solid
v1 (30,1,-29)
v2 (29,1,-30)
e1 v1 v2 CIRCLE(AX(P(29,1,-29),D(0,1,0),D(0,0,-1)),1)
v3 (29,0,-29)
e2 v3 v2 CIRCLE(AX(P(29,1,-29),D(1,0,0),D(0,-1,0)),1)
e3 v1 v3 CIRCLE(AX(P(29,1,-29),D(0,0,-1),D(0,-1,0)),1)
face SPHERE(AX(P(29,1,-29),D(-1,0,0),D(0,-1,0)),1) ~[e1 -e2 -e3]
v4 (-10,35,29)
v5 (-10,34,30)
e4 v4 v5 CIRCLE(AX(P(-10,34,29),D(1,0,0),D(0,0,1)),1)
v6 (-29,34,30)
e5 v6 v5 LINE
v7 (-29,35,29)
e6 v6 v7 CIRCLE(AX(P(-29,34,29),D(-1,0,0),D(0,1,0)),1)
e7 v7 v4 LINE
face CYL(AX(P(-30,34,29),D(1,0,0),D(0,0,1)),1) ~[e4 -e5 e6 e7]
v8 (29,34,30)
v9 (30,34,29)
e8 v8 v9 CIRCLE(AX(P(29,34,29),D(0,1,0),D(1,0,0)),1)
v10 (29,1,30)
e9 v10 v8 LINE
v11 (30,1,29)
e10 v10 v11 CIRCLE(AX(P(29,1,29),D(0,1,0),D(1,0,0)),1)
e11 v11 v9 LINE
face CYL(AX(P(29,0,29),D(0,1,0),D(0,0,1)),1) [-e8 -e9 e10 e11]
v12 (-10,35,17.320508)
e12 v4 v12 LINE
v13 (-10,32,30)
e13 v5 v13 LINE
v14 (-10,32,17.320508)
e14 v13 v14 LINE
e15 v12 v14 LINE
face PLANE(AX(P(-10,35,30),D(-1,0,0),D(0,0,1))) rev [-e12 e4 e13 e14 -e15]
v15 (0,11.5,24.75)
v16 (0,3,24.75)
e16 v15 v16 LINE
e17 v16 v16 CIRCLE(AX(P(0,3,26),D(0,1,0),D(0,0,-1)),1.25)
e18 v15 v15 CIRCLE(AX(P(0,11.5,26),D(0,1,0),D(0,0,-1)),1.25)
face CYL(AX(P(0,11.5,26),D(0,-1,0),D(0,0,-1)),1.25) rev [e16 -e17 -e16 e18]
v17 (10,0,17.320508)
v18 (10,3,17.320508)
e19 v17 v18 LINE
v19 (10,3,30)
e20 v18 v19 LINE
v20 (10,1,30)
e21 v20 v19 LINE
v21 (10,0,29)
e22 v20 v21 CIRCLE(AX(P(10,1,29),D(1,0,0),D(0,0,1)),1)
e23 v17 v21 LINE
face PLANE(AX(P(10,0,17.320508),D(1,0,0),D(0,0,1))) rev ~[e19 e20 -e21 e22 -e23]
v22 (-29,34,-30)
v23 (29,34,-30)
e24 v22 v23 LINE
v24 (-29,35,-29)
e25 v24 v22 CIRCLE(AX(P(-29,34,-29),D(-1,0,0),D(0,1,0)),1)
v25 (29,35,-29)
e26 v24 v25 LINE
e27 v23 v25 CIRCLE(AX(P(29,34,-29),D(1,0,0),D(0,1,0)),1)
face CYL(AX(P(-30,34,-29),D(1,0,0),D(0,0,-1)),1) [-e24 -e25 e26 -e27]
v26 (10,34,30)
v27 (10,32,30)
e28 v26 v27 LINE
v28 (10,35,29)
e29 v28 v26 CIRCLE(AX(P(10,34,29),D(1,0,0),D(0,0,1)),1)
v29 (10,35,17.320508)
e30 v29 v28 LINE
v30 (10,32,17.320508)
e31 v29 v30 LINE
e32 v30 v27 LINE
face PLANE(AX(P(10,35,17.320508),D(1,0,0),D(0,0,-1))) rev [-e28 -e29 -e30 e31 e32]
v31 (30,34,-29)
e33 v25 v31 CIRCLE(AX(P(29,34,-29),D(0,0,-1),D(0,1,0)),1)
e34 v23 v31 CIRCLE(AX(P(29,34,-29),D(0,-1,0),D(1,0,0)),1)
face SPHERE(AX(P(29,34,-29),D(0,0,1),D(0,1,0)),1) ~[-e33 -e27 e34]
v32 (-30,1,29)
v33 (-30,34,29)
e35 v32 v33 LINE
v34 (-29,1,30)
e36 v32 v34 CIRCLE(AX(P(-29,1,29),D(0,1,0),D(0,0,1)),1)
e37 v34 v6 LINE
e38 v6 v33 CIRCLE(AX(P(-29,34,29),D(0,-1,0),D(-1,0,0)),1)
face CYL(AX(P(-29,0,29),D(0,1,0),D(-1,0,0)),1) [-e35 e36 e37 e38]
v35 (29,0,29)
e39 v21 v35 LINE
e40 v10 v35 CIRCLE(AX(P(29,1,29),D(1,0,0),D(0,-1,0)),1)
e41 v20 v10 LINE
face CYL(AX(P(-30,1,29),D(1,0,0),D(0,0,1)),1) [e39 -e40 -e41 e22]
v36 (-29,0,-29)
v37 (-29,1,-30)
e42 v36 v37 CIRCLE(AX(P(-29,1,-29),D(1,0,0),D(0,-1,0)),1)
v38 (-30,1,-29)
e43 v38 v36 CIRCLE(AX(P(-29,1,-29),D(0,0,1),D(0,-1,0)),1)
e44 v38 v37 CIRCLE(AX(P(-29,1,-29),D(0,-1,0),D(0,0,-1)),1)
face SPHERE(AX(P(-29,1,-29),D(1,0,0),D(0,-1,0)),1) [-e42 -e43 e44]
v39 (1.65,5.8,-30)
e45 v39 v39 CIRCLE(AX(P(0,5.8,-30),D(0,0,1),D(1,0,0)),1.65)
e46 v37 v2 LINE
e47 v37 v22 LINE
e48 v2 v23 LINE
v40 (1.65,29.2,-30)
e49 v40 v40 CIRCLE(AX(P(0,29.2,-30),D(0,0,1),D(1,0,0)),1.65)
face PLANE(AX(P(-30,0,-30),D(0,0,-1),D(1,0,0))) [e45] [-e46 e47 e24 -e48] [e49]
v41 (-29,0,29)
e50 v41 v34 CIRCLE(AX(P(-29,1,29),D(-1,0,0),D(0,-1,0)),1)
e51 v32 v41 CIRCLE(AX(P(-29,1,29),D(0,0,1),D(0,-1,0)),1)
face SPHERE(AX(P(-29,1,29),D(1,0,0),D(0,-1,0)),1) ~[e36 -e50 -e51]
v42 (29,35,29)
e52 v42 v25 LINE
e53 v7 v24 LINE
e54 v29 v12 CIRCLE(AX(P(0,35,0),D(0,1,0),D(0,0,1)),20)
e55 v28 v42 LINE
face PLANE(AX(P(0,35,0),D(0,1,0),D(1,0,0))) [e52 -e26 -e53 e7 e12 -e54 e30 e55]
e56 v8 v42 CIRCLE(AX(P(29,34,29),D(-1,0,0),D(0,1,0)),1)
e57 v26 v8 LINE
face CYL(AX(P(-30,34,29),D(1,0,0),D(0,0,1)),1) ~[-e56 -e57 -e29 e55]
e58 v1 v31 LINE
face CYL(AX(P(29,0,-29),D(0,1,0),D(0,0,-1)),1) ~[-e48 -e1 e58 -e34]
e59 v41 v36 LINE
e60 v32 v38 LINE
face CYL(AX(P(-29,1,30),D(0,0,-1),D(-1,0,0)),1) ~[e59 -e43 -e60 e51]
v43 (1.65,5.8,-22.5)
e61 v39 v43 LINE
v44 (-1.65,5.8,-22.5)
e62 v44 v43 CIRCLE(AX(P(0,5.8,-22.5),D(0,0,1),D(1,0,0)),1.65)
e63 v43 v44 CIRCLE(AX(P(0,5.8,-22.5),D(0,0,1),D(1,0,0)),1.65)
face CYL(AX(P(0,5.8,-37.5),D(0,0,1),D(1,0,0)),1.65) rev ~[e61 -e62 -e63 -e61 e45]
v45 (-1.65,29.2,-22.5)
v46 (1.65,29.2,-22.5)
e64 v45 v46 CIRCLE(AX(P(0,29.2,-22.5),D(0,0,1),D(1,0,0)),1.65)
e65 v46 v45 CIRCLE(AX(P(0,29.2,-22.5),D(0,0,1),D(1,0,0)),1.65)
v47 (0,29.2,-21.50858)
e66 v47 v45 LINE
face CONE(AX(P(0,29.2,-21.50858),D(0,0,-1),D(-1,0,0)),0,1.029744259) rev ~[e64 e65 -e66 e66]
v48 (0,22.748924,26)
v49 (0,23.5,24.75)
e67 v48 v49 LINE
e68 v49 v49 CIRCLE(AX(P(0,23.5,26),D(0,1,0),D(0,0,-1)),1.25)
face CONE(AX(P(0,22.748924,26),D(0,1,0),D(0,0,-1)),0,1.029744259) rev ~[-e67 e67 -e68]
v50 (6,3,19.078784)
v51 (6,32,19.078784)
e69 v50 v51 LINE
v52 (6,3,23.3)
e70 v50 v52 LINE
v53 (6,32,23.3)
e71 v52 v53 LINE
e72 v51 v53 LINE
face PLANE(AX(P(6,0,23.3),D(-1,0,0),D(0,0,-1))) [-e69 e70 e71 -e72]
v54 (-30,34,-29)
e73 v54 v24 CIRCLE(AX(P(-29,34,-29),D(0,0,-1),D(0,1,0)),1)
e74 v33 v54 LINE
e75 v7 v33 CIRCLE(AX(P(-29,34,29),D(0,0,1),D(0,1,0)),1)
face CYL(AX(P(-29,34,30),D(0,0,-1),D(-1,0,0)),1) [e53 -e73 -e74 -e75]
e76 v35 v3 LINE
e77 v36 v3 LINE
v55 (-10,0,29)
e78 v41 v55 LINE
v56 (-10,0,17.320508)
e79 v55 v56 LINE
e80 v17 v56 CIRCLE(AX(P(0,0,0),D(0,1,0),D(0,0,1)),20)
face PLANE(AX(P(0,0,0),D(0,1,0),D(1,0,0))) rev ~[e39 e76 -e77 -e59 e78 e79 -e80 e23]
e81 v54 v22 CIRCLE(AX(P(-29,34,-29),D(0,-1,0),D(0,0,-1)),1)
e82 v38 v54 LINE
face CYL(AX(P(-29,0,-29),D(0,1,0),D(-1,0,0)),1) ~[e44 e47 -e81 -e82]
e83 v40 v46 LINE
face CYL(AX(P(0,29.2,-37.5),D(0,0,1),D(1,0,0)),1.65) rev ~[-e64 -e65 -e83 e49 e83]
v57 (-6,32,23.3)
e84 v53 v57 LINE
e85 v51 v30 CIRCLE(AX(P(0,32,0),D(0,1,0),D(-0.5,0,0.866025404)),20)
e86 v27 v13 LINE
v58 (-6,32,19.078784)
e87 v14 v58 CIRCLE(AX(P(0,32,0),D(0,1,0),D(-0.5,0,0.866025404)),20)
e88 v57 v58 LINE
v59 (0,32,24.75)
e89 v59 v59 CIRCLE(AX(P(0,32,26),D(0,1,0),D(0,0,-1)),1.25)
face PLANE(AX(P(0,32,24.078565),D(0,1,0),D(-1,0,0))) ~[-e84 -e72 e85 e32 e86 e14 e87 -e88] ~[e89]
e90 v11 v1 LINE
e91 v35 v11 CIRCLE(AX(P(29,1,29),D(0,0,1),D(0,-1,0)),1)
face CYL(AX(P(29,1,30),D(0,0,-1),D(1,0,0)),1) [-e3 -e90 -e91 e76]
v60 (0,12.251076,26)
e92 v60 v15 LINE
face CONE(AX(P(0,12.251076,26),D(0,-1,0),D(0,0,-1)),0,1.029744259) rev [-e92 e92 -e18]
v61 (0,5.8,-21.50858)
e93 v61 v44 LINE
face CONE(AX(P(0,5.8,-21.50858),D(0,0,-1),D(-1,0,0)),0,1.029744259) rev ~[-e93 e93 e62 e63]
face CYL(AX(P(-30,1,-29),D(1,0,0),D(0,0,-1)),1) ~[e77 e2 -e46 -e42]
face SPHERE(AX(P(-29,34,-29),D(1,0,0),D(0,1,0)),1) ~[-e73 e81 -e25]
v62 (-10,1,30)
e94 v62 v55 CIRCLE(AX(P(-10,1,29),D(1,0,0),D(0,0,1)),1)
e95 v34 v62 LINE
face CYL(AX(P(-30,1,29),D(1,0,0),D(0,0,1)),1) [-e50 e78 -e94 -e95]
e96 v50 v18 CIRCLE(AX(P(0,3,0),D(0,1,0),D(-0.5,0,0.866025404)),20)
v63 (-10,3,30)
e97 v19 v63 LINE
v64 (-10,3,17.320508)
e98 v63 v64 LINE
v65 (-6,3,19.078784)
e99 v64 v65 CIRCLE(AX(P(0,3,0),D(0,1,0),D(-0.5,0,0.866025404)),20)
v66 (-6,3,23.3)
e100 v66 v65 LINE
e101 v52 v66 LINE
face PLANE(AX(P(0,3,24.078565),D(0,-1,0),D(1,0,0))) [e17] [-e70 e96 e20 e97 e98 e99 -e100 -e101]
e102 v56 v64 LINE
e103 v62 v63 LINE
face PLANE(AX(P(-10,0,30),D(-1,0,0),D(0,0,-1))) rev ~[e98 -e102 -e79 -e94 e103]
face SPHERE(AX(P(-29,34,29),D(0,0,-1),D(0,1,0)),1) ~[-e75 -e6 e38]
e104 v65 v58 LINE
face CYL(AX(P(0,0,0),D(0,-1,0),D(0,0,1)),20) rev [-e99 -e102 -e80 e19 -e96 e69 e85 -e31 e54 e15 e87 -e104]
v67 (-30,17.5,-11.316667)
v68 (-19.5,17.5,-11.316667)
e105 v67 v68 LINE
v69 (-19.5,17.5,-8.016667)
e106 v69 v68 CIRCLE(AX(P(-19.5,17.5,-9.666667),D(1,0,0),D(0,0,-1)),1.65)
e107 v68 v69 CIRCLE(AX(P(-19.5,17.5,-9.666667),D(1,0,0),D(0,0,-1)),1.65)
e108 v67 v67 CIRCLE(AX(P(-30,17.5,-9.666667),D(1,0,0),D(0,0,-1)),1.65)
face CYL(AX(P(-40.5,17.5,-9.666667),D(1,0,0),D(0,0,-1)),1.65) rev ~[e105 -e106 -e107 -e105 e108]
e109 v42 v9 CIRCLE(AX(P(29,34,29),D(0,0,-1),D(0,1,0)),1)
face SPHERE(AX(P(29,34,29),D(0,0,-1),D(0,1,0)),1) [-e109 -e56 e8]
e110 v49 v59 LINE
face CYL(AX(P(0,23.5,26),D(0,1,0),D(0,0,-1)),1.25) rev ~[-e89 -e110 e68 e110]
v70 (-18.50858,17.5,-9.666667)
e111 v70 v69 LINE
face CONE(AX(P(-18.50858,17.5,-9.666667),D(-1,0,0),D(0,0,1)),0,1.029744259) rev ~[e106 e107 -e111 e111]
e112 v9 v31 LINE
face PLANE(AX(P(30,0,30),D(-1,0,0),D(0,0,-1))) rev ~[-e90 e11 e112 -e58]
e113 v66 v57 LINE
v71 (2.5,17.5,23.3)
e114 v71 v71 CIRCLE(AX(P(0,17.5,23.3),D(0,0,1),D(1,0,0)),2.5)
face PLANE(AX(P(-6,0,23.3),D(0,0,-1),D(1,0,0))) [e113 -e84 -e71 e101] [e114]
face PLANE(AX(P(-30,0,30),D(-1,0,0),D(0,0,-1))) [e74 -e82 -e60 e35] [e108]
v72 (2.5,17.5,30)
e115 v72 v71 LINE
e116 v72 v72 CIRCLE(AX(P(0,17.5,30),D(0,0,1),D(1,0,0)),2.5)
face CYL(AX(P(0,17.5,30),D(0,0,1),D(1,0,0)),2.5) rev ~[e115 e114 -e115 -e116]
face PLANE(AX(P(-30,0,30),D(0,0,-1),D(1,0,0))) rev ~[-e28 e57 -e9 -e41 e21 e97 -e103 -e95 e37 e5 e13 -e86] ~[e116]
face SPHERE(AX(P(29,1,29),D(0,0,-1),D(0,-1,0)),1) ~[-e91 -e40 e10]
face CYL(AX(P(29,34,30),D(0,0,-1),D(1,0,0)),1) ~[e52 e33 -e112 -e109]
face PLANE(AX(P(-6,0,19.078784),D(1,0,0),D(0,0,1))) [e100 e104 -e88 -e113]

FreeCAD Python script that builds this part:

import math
import FreeCAD as App
import Part
import Sketcher

V = App.Vector
Q = App.Units.Quantity


def edges_at(feature, points):
    """Names of the edges that pass closest to the given points."""
    edges = feature.Shape.Edges
    near = lambda p: min(range(len(edges)), key=lambda i: edges[i].distToShape(Part.Vertex(*p))[0])
    return sorted({f"Edge{near(p) + 1}" for p in points})

doc = App.newDocument("Part")
body = doc.addObject("PartDesign::Body", "Body")

# Sketch on XZ plane
sketch1 = body.newObject("Sketcher::SketchObject", "Sketch")
sketch1.AttachmentSupport = (doc.getObject("XZ_Plane"), [""])
sketch1.MapMode = "FlatFace"
sketch1.addGeometry([
    Part.LineSegment(V(-30, -30, 0), V(-30, 30, 0)),  # 0
    Part.LineSegment(V(-30, 30, 0), V(30, 30, 0)),  # 1
    Part.LineSegment(V(30, 30, 0), V(30, -30, 0)),  # 2
    Part.LineSegment(V(30, -30, 0), V(-30, -30, 0)),  # 3
    Part.Circle(V(0, 0, 0), V(0, 0, 1), 20),  # 4
], False)
sketch1.addConstraint([
    Sketcher.Constraint("Coincident", 0, 2, 1, 1),
    Sketcher.Constraint("Coincident", 1, 2, 2, 1),
    Sketcher.Constraint("Coincident", 2, 2, 3, 1),
    Sketcher.Constraint("Coincident", 3, 2, 0, 1),
    Sketcher.Constraint("Vertical", 0),
    Sketcher.Constraint("Horizontal", 1),
    Sketcher.Constraint("Vertical", 2),
    Sketcher.Constraint("Horizontal", 3),
    Sketcher.Constraint("Coincident", 4, 3, -1, 1),
    Sketcher.Constraint("Symmetric", 0, 2, 2, 2, -1, 1),
    Sketcher.Constraint("Equal", 3, 0),
    Sketcher.Constraint("Diameter", 4, 40.0),
    Sketcher.Constraint("DistanceX", 1, 1, 1, 2, 60.0),
])
pad1 = body.newObject("PartDesign::Pad", "Pad")
pad1.Profile = sketch1
pad1.Length = 35
pad1.Reversed = True
doc.recompute()

fillet = body.newObject("PartDesign::Fillet", "Fillet")
fillet.Base = (pad1, edges_at(pad1, [
    (30, 35, 0),
    (0, 35, -30),
    (-30, 35, 0),
    (0, 0, -30),
    (30, 0, 0),
    (0, 0, 30),
    (-30, 0, 0),
    (0, 35, 30),
    (-30, 17.5, -30),
    (30, 17.5, -30),
    (30, 17.5, 30),
    (-30, 17.5, 30),
]))
fillet.Radius = 1

# Sketch on XY plane
sketch2 = body.newObject("Sketcher::SketchObject", "Sketch001")
sketch2.AttachmentSupport = (doc.getObject("XY_Plane"), [""])
sketch2.MapMode = "FlatFace"
sketch2.AttachmentOffset = App.Placement(V(0, 0, 30), App.Rotation())
sketch2.addGeometry(Part.Circle(V(0, 17.5, 0), V(0, 0, 1), 2.5), False)
sketch2.addConstraint([
    Sketcher.Constraint("PointOnObject", 0, 3, -2),
    Sketcher.Constraint("Diameter", 0, 5.0),
    Sketcher.Constraint("DistanceY", -1, 1, 0, 3, 17.5),
])
pocket1 = body.newObject("PartDesign::Pocket", "Pocket")
pocket1.Profile = sketch2
pocket1.Type = "UpToFirst"

# Sketch on XY plane
sketch3 = body.newObject("Sketcher::SketchObject", "Sketch002")
sketch3.AttachmentSupport = (doc.getObject("XY_Plane"), [""])
sketch3.MapMode = "FlatFace"
sketch3.AttachmentOffset = App.Placement(V(0, 0, -30), App.Rotation())
sketch3.addGeometry([
    Part.Circle(V(0, 29.2, 0), V(0, 0, 1), 1.6),
    Part.Circle(V(0, 5.8, 0), V(0, 0, 1), 1.6),
], False)
sketch3.addConstraint([
    Sketcher.Constraint("Equal", 0, 1),
    Sketcher.Constraint("PointOnObject", 0, 3, -2),
    Sketcher.Constraint("PointOnObject", 1, 3, -2),
    Sketcher.Constraint("Diameter", 0, 3.3),
    Sketcher.Constraint("DistanceY", -1, 1, 0, 3, 29.2),
    Sketcher.Constraint("DistanceY", -1, 1, 1, 3, 5.8),
])
doc.recompute()
hole = body.newObject("PartDesign::Hole", "Hole")
hole.Profile = sketch3
hole.ThreadType = "None"
hole.Diameter = 3.3
hole.DepthType = "Dimension"
hole.Depth = 7.5
hole.DrillPoint = "Angled"
hole.DrillPointAngle = 118
hole.Reversed = True

# Sketch on YZ plane
sketch4 = body.newObject("Sketcher::SketchObject", "Sketch003")
sketch4.AttachmentSupport = (doc.getObject("YZ_Plane"), [""])
sketch4.MapMode = "FlatFace"
sketch4.AttachmentOffset = App.Placement(V(0, 0, -30), App.Rotation())
sketch4.addGeometry(Part.Circle(V(17.5, -9.7, 0), V(0, 0, 1), 1.6), False)
sketch4.addConstraint([
    Sketcher.Constraint("Diameter", 0, 3.3),
    Sketcher.Constraint("DistanceX", -1, 1, 0, 3, 17.5),
    Sketcher.Constraint("DistanceY", 0, 3, -1, 1, 9.666667),
])
doc.recompute()
hole2 = body.newObject("PartDesign::Hole", "Hole001")
hole2.Profile = sketch4
hole2.ThreadType = "None"
hole2.Diameter = 3.3
hole2.DepthType = "Dimension"
hole2.Depth = 10.5
hole2.DrillPoint = "Angled"
hole2.DrillPointAngle = 118
hole2.Reversed = True

# Sketch on XZ plane
sketch5 = body.newObject("Sketcher::SketchObject", "Sketch004")
sketch5.AttachmentSupport = (doc.getObject("XZ_Plane"), [""])
sketch5.MapMode = "FlatFace"
sketch5.addGeometry([
    Part.LineSegment(V(6, 19.1, 0), V(6, 23.3, 0)),
    Part.LineSegment(V(6, 23.3, 0), V(-6, 23.3, 0)),
    Part.LineSegment(V(-6, 23.3, 0), V(-6, 19.1, 0)),
    Part.ArcOfCircle(Part.Circle(V(0, 0, 0), V(0, 0, 1), 20), math.radians(73), math.radians(107)),
], False)
sketch5.addConstraint([
    Sketcher.Constraint("Coincident", 0, 2, 1, 1),
    Sketcher.Constraint("Coincident", 1, 2, 2, 1),
    Sketcher.Constraint("Coincident", 2, 2, 3, 2),
    Sketcher.Constraint("Coincident", 3, 1, 0, 1),
    Sketcher.Constraint("Vertical", 0),
    Sketcher.Constraint("Horizontal", 1),
    Sketcher.Constraint("Vertical", 2),
    Sketcher.Constraint("Coincident", 3, 3, -1, 1),
    Sketcher.Constraint("Horizontal", 2, 2, 3, 1),
    Sketcher.Constraint("Radius", 3, 20.0),
    Sketcher.Constraint("DistanceX", 1, 2, 1, 1, 12.0),
    Sketcher.Constraint("DistanceY", -1, 1, 0, 2, 23.3),
])
pocket2 = body.newObject("PartDesign::Pocket", "Pocket001")
pocket2.Profile = sketch5
pocket2.Length = 35

# Sketch on XZ plane
sketch6 = body.newObject("Sketcher::SketchObject", "Sketch005")
sketch6.AttachmentSupport = (doc.getObject("XZ_Plane"), [""])
sketch6.MapMode = "FlatFace"
sketch6.addGeometry([
    Part.LineSegment(V(-10, 30, 0), V(-10, 17, 0)),
    Part.ArcOfCircle(Part.Circle(V(0, 0, 0), V(0, 0, 1), 20), math.radians(60), math.radians(120)),
    Part.LineSegment(V(10, 17, 0), V(10, 30, 0)),
    Part.LineSegment(V(10, 30, 0), V(-10, 30, 0)),
], False)
sketch6.addConstraint([
    Sketcher.Constraint("Coincident", 0, 2, 1, 2),
    Sketcher.Constraint("Coincident", 1, 1, 2, 1),
    Sketcher.Constraint("Coincident", 2, 2, 3, 1),
    Sketcher.Constraint("Coincident", 3, 2, 0, 1),
    Sketcher.Constraint("Vertical", 0),
    Sketcher.Constraint("Vertical", 2),
    Sketcher.Constraint("Horizontal", 3),
    Sketcher.Constraint("Coincident", 1, 3, -1, 1),
    Sketcher.Constraint("Horizontal", 0, 2, 1, 1),
    Sketcher.Constraint("Radius", 1, 20.0),
    Sketcher.Constraint("DistanceX", 3, 2, 3, 1, 20.0),
    Sketcher.Constraint("DistanceY", -1, 1, 2, 2, 30.0),
])
pocket3 = body.newObject("PartDesign::Pocket", "Pocket002")
pocket3.Profile = sketch6
pocket3.Length = 3

# Sketch on YZ plane
sketch7 = body.newObject("Sketcher::SketchObject", "Sketch006")
sketch7.AttachmentSupport = (doc.getObject("YZ_Plane"), [""])
sketch7.MapMode = "FlatFace"
sketch7.addGeometry([
    Part.LineSegment(V(12.3, 26, 0), V(3, 26, 0)),
    Part.LineSegment(V(3, 26, 0), V(3, 24.8, 0)),
    Part.LineSegment(V(3, 24.8, 0), V(11.5, 24.8, 0)),
    Part.LineSegment(V(11.5, 24.8, 0), V(12.3, 26, 0)),
], False)
sketch7.addGeometry(Part.LineSegment(V(3, 26, 0), V(12.3, 26, 0)), True)  # axis
sketch7.addConstraint([
    Sketcher.Constraint("Coincident", 0, 2, 1, 1),
    Sketcher.Constraint("Coincident", 1, 2, 2, 1),
    Sketcher.Constraint("Coincident", 2, 2, 3, 1),
    Sketcher.Constraint("Coincident", 3, 2, 0, 1),
    Sketcher.Constraint("Horizontal", 0),
    Sketcher.Constraint("Vertical", 1),
    Sketcher.Constraint("Horizontal", 2),
    Sketcher.Constraint("Horizontal", 4),
    Sketcher.Constraint("Coincident", 4, 1, 0, 2),
    Sketcher.Constraint("Equal", 0, 4),
    Sketcher.Constraint("Angle", 3, Q("59 deg")),
    Sketcher.Constraint("DistanceX", 2, 1, 2, 2, 8.5),
    Sketcher.Constraint("DistanceX", -1, 1, 0, 2, 3.0),
    Sketcher.Constraint("DistanceY", -1, 1, 0, 2, 26.0),
    Sketcher.Constraint("DistanceY", 1, 2, 1, 1, 1.25),
])
groove = body.newObject("PartDesign::Groove", "Groove")
groove.Profile = sketch7
groove.ReferenceAxis = (sketch7, ["Axis0"])
groove.Angle = 360
doc.recompute()

datumplane = body.newObject("PartDesign::Plane", "DatumPlane")
datumplane.AttachmentSupport = (doc.getObject("XZ_Plane"), [""])
datumplane.MapMode = "FlatFace"
datumplane.AttachmentOffset = App.Placement(V(0, 0, -17.5), App.Rotation())
mirrored = body.newObject("PartDesign::Mirrored", "Mirrored")
mirrored.Originals = [pocket3, groove]
mirrored.MirrorPlane = (datumplane, [""])
body.Tip = mirrored

doc.recompute()
